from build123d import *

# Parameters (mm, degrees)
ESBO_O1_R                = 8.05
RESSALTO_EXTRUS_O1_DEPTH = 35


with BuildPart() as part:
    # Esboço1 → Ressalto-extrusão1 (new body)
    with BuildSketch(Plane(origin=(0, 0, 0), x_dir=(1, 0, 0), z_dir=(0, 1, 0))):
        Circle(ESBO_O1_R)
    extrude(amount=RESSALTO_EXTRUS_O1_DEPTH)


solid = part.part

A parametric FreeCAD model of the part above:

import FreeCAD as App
import Part
import Sketcher

V = App.Vector
Q = App.Units.Quantity

doc = App.newDocument("Part")
params = doc.addObject("Spreadsheet::Sheet", "Params")
for row, (alias, value) in enumerate([
    ("sketch1_diameter", "16.1 mm"),
    ("pad1_length", "35 mm"),
], start=1):
    params.set(f"A{row}", alias)
    params.set(f"B{row}", "=" + value)
    params.setAlias(f"B{row}", alias)

body = doc.addObject("PartDesign::Body", "Body")

sketch1 = body.newObject("Sketcher::SketchObject", "Sketch")
sketch1.AttachmentSupport = (doc.getObject("XZ_Plane"), [""])
sketch1.MapMode = "FlatFace"
sketch1.addGeometry(Part.Circle(V(0, 0, 0), V(0, 0, 1), 8.05), False)
sketch1.addConstraint(Sketcher.Constraint("Coincident", 0, 3, -1, 1))
sketch1.addConstraint(Sketcher.Constraint("Diameter", 0, Q("16.1 mm")))
sketch1.setExpression("Constraints[1]", "Params.sketch1_diameter")
pad1 = body.newObject("PartDesign::Pad", "Pad")
pad1.Profile = sketch1
pad1.setExpression("Length", "Params.pad1_length")
pad1.Reversed = True

doc.recompute()
